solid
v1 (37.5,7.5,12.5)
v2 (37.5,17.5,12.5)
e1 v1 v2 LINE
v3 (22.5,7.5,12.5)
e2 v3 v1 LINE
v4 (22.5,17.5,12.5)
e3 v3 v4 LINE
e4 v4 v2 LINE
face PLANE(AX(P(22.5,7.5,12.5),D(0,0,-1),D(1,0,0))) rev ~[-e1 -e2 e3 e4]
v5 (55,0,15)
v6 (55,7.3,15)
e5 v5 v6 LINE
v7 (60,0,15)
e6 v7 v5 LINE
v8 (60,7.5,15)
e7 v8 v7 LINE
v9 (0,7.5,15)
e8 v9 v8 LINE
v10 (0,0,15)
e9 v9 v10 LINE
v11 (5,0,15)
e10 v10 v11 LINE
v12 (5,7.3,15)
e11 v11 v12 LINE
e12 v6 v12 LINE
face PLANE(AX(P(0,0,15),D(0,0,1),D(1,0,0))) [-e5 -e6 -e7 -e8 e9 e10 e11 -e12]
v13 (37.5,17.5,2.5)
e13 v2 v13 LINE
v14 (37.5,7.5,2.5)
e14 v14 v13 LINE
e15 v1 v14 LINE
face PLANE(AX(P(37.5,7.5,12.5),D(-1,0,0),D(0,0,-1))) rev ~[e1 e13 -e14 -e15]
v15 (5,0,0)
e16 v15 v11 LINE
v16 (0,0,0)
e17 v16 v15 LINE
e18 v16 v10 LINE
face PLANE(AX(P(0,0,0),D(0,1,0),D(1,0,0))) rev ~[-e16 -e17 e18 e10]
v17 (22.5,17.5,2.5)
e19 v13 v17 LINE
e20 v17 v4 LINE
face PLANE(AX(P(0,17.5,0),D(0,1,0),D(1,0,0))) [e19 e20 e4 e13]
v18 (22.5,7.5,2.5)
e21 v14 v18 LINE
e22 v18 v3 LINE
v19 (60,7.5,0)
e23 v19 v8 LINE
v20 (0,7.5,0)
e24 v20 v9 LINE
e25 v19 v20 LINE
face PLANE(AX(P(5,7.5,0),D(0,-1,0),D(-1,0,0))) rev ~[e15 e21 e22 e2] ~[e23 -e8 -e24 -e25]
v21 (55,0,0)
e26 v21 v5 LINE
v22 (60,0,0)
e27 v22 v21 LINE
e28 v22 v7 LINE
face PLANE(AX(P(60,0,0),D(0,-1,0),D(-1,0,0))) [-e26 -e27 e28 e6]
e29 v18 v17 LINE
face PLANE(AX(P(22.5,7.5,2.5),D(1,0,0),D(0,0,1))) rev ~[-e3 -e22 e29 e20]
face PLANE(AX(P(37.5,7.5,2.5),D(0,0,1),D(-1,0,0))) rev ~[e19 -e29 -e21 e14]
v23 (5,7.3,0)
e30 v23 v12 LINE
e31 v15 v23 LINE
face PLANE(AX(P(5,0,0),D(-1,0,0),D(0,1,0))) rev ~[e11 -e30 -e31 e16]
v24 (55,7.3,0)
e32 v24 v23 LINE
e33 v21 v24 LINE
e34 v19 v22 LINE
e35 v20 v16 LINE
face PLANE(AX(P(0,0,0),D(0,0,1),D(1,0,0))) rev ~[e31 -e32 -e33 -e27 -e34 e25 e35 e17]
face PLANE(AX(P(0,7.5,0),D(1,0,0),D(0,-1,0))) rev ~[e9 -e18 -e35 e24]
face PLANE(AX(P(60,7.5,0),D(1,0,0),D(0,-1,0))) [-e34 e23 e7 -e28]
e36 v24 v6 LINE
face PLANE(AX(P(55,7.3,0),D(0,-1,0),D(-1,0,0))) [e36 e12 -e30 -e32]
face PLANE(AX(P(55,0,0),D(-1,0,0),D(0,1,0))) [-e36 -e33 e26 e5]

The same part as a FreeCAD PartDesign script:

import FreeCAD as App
import Part
import Sketcher
from FreeCAD import Vector

doc = App.newDocument("Part")
body = doc.addObject("PartDesign::Body", "Body")

# Sketch on XY plane
sketch1 = body.newObject("Sketcher::SketchObject", "Sketch")
sketch1.AttachmentSupport = (doc.getObject("XY_Plane"), [""])
sketch1.MapMode = "FlatFace"
sketch1.addGeometry([
    Part.LineSegment(Vector(0, 8, 0), Vector(0, 0, 0)),  # 0
    Part.LineSegment(Vector(0, 0, 0), Vector(5, 0, 0)),  # 1
    Part.LineSegment(Vector(5, 0, 0), Vector(5, 7, 0)),  # 2
    Part.LineSegment(Vector(5, 7, 0), Vector(55, 7, 0)),  # 3
    Part.LineSegment(Vector(55, 7, 0), Vector(55, 0, 0)),  # 4
    Part.LineSegment(Vector(55, 0, 0), Vector(60, 0, 0)),  # 5
    Part.LineSegment(Vector(60, 0, 0), Vector(60, 8, 0)),  # 6
    Part.LineSegment(Vector(60, 8, 0), Vector(0, 8, 0)),  # 7
], False)
sketch1.addConstraint([
    Sketcher.Constraint("Coincident", 0, 2, 1, 1),
    Sketcher.Constraint("Coincident", 1, 2, 2, 1),
    Sketcher.Constraint("Coincident", 2, 2, 3, 1),
    Sketcher.Constraint("Coincident", 3, 2, 4, 1),
    Sketcher.Constraint("Coincident", 4, 2, 5, 1),
    Sketcher.Constraint("Coincident", 5, 2, 6, 1),
    Sketcher.Constraint("Coincident", 6, 2, 7, 1),
    Sketcher.Constraint("Coincident", 7, 2, 0, 1),
    Sketcher.Constraint("Vertical", 0),
    Sketcher.Constraint("Horizontal", 1),
    Sketcher.Constraint("Vertical", 2),
    Sketcher.Constraint("Horizontal", 3),
    Sketcher.Constraint("Vertical", 4),
    Sketcher.Constraint("Horizontal", 5),
    Sketcher.Constraint("Vertical", 6),
    Sketcher.Constraint("Horizontal", 7),
    Sketcher.Constraint("Coincident", 0, 2, -1, 1),
    Sketcher.Constraint("PointOnObject", 4, 2, -1),
    Sketcher.Constraint("Equal", 1, 5),
    Sketcher.Constraint("DistanceX", 1, 1, 1, 2, 5.0),
    Sketcher.Constraint("DistanceX", 3, 1, 3, 2, 50.0),
    Sketcher.Constraint("DistanceY", 0, 2, 0, 1, 7.5),
    Sketcher.Constraint("DistanceY", 3, 2, 6, 2, 0.2),
])
pad1 = body.newObject("PartDesign::Pad", "Pad")
pad1.Profile = sketch1
pad1.Length = 15

# Sketch on XZ plane
sketch2 = body.newObject("Sketcher::SketchObject", "Sketch001")
sketch2.AttachmentSupport = (doc.getObject("XZ_Plane"), [""])
sketch2.MapMode = "FlatFace"
sketch2.AttachmentOffset = App.Placement(Vector(0, 0, -7.5), App.Rotation())
sketch2.addGeometry([
    Part.LineSegment(Vector(22, 2, 0), Vector(22, 12, 0)),
    Part.LineSegment(Vector(22, 12, 0), Vector(38, 12, 0)),
    Part.LineSegment(Vector(38, 12, 0), Vector(38, 2, 0)),
    Part.LineSegment(Vector(38, 2, 0), Vector(22, 2, 0)),
], False)
sketch2.addConstraint([
    Sketcher.Constraint("Coincident", 0, 2, 1, 1),
    Sketcher.Constraint("Coincident", 1, 2, 2, 1),
    Sketcher.Constraint("Coincident", 2, 2, 3, 1),
    Sketcher.Constraint("Coincident", 3, 2, 0, 1),
    Sketcher.Constraint("Vertical", 0),
    Sketcher.Constraint("Horizontal", 1),
    Sketcher.Constraint("Vertical", 2),
    Sketcher.Constraint("Horizontal", 3),
    Sketcher.Constraint("DistanceX", 1, 1, 1, 2, 15.0),
    Sketcher.Constraint("DistanceY", 0, 1, 0, 2, 10.0),
    Sketcher.Constraint("DistanceX", -1, 1, 0, 2, 22.5),
    Sketcher.Constraint("DistanceY", -1, 1, 0, 2, 12.5),
])
pad2 = body.newObject("PartDesign::Pad", "Pad001")
pad2.Profile = sketch2
pad2.Length = 10
pad2.Reversed = True

doc.recompute()
